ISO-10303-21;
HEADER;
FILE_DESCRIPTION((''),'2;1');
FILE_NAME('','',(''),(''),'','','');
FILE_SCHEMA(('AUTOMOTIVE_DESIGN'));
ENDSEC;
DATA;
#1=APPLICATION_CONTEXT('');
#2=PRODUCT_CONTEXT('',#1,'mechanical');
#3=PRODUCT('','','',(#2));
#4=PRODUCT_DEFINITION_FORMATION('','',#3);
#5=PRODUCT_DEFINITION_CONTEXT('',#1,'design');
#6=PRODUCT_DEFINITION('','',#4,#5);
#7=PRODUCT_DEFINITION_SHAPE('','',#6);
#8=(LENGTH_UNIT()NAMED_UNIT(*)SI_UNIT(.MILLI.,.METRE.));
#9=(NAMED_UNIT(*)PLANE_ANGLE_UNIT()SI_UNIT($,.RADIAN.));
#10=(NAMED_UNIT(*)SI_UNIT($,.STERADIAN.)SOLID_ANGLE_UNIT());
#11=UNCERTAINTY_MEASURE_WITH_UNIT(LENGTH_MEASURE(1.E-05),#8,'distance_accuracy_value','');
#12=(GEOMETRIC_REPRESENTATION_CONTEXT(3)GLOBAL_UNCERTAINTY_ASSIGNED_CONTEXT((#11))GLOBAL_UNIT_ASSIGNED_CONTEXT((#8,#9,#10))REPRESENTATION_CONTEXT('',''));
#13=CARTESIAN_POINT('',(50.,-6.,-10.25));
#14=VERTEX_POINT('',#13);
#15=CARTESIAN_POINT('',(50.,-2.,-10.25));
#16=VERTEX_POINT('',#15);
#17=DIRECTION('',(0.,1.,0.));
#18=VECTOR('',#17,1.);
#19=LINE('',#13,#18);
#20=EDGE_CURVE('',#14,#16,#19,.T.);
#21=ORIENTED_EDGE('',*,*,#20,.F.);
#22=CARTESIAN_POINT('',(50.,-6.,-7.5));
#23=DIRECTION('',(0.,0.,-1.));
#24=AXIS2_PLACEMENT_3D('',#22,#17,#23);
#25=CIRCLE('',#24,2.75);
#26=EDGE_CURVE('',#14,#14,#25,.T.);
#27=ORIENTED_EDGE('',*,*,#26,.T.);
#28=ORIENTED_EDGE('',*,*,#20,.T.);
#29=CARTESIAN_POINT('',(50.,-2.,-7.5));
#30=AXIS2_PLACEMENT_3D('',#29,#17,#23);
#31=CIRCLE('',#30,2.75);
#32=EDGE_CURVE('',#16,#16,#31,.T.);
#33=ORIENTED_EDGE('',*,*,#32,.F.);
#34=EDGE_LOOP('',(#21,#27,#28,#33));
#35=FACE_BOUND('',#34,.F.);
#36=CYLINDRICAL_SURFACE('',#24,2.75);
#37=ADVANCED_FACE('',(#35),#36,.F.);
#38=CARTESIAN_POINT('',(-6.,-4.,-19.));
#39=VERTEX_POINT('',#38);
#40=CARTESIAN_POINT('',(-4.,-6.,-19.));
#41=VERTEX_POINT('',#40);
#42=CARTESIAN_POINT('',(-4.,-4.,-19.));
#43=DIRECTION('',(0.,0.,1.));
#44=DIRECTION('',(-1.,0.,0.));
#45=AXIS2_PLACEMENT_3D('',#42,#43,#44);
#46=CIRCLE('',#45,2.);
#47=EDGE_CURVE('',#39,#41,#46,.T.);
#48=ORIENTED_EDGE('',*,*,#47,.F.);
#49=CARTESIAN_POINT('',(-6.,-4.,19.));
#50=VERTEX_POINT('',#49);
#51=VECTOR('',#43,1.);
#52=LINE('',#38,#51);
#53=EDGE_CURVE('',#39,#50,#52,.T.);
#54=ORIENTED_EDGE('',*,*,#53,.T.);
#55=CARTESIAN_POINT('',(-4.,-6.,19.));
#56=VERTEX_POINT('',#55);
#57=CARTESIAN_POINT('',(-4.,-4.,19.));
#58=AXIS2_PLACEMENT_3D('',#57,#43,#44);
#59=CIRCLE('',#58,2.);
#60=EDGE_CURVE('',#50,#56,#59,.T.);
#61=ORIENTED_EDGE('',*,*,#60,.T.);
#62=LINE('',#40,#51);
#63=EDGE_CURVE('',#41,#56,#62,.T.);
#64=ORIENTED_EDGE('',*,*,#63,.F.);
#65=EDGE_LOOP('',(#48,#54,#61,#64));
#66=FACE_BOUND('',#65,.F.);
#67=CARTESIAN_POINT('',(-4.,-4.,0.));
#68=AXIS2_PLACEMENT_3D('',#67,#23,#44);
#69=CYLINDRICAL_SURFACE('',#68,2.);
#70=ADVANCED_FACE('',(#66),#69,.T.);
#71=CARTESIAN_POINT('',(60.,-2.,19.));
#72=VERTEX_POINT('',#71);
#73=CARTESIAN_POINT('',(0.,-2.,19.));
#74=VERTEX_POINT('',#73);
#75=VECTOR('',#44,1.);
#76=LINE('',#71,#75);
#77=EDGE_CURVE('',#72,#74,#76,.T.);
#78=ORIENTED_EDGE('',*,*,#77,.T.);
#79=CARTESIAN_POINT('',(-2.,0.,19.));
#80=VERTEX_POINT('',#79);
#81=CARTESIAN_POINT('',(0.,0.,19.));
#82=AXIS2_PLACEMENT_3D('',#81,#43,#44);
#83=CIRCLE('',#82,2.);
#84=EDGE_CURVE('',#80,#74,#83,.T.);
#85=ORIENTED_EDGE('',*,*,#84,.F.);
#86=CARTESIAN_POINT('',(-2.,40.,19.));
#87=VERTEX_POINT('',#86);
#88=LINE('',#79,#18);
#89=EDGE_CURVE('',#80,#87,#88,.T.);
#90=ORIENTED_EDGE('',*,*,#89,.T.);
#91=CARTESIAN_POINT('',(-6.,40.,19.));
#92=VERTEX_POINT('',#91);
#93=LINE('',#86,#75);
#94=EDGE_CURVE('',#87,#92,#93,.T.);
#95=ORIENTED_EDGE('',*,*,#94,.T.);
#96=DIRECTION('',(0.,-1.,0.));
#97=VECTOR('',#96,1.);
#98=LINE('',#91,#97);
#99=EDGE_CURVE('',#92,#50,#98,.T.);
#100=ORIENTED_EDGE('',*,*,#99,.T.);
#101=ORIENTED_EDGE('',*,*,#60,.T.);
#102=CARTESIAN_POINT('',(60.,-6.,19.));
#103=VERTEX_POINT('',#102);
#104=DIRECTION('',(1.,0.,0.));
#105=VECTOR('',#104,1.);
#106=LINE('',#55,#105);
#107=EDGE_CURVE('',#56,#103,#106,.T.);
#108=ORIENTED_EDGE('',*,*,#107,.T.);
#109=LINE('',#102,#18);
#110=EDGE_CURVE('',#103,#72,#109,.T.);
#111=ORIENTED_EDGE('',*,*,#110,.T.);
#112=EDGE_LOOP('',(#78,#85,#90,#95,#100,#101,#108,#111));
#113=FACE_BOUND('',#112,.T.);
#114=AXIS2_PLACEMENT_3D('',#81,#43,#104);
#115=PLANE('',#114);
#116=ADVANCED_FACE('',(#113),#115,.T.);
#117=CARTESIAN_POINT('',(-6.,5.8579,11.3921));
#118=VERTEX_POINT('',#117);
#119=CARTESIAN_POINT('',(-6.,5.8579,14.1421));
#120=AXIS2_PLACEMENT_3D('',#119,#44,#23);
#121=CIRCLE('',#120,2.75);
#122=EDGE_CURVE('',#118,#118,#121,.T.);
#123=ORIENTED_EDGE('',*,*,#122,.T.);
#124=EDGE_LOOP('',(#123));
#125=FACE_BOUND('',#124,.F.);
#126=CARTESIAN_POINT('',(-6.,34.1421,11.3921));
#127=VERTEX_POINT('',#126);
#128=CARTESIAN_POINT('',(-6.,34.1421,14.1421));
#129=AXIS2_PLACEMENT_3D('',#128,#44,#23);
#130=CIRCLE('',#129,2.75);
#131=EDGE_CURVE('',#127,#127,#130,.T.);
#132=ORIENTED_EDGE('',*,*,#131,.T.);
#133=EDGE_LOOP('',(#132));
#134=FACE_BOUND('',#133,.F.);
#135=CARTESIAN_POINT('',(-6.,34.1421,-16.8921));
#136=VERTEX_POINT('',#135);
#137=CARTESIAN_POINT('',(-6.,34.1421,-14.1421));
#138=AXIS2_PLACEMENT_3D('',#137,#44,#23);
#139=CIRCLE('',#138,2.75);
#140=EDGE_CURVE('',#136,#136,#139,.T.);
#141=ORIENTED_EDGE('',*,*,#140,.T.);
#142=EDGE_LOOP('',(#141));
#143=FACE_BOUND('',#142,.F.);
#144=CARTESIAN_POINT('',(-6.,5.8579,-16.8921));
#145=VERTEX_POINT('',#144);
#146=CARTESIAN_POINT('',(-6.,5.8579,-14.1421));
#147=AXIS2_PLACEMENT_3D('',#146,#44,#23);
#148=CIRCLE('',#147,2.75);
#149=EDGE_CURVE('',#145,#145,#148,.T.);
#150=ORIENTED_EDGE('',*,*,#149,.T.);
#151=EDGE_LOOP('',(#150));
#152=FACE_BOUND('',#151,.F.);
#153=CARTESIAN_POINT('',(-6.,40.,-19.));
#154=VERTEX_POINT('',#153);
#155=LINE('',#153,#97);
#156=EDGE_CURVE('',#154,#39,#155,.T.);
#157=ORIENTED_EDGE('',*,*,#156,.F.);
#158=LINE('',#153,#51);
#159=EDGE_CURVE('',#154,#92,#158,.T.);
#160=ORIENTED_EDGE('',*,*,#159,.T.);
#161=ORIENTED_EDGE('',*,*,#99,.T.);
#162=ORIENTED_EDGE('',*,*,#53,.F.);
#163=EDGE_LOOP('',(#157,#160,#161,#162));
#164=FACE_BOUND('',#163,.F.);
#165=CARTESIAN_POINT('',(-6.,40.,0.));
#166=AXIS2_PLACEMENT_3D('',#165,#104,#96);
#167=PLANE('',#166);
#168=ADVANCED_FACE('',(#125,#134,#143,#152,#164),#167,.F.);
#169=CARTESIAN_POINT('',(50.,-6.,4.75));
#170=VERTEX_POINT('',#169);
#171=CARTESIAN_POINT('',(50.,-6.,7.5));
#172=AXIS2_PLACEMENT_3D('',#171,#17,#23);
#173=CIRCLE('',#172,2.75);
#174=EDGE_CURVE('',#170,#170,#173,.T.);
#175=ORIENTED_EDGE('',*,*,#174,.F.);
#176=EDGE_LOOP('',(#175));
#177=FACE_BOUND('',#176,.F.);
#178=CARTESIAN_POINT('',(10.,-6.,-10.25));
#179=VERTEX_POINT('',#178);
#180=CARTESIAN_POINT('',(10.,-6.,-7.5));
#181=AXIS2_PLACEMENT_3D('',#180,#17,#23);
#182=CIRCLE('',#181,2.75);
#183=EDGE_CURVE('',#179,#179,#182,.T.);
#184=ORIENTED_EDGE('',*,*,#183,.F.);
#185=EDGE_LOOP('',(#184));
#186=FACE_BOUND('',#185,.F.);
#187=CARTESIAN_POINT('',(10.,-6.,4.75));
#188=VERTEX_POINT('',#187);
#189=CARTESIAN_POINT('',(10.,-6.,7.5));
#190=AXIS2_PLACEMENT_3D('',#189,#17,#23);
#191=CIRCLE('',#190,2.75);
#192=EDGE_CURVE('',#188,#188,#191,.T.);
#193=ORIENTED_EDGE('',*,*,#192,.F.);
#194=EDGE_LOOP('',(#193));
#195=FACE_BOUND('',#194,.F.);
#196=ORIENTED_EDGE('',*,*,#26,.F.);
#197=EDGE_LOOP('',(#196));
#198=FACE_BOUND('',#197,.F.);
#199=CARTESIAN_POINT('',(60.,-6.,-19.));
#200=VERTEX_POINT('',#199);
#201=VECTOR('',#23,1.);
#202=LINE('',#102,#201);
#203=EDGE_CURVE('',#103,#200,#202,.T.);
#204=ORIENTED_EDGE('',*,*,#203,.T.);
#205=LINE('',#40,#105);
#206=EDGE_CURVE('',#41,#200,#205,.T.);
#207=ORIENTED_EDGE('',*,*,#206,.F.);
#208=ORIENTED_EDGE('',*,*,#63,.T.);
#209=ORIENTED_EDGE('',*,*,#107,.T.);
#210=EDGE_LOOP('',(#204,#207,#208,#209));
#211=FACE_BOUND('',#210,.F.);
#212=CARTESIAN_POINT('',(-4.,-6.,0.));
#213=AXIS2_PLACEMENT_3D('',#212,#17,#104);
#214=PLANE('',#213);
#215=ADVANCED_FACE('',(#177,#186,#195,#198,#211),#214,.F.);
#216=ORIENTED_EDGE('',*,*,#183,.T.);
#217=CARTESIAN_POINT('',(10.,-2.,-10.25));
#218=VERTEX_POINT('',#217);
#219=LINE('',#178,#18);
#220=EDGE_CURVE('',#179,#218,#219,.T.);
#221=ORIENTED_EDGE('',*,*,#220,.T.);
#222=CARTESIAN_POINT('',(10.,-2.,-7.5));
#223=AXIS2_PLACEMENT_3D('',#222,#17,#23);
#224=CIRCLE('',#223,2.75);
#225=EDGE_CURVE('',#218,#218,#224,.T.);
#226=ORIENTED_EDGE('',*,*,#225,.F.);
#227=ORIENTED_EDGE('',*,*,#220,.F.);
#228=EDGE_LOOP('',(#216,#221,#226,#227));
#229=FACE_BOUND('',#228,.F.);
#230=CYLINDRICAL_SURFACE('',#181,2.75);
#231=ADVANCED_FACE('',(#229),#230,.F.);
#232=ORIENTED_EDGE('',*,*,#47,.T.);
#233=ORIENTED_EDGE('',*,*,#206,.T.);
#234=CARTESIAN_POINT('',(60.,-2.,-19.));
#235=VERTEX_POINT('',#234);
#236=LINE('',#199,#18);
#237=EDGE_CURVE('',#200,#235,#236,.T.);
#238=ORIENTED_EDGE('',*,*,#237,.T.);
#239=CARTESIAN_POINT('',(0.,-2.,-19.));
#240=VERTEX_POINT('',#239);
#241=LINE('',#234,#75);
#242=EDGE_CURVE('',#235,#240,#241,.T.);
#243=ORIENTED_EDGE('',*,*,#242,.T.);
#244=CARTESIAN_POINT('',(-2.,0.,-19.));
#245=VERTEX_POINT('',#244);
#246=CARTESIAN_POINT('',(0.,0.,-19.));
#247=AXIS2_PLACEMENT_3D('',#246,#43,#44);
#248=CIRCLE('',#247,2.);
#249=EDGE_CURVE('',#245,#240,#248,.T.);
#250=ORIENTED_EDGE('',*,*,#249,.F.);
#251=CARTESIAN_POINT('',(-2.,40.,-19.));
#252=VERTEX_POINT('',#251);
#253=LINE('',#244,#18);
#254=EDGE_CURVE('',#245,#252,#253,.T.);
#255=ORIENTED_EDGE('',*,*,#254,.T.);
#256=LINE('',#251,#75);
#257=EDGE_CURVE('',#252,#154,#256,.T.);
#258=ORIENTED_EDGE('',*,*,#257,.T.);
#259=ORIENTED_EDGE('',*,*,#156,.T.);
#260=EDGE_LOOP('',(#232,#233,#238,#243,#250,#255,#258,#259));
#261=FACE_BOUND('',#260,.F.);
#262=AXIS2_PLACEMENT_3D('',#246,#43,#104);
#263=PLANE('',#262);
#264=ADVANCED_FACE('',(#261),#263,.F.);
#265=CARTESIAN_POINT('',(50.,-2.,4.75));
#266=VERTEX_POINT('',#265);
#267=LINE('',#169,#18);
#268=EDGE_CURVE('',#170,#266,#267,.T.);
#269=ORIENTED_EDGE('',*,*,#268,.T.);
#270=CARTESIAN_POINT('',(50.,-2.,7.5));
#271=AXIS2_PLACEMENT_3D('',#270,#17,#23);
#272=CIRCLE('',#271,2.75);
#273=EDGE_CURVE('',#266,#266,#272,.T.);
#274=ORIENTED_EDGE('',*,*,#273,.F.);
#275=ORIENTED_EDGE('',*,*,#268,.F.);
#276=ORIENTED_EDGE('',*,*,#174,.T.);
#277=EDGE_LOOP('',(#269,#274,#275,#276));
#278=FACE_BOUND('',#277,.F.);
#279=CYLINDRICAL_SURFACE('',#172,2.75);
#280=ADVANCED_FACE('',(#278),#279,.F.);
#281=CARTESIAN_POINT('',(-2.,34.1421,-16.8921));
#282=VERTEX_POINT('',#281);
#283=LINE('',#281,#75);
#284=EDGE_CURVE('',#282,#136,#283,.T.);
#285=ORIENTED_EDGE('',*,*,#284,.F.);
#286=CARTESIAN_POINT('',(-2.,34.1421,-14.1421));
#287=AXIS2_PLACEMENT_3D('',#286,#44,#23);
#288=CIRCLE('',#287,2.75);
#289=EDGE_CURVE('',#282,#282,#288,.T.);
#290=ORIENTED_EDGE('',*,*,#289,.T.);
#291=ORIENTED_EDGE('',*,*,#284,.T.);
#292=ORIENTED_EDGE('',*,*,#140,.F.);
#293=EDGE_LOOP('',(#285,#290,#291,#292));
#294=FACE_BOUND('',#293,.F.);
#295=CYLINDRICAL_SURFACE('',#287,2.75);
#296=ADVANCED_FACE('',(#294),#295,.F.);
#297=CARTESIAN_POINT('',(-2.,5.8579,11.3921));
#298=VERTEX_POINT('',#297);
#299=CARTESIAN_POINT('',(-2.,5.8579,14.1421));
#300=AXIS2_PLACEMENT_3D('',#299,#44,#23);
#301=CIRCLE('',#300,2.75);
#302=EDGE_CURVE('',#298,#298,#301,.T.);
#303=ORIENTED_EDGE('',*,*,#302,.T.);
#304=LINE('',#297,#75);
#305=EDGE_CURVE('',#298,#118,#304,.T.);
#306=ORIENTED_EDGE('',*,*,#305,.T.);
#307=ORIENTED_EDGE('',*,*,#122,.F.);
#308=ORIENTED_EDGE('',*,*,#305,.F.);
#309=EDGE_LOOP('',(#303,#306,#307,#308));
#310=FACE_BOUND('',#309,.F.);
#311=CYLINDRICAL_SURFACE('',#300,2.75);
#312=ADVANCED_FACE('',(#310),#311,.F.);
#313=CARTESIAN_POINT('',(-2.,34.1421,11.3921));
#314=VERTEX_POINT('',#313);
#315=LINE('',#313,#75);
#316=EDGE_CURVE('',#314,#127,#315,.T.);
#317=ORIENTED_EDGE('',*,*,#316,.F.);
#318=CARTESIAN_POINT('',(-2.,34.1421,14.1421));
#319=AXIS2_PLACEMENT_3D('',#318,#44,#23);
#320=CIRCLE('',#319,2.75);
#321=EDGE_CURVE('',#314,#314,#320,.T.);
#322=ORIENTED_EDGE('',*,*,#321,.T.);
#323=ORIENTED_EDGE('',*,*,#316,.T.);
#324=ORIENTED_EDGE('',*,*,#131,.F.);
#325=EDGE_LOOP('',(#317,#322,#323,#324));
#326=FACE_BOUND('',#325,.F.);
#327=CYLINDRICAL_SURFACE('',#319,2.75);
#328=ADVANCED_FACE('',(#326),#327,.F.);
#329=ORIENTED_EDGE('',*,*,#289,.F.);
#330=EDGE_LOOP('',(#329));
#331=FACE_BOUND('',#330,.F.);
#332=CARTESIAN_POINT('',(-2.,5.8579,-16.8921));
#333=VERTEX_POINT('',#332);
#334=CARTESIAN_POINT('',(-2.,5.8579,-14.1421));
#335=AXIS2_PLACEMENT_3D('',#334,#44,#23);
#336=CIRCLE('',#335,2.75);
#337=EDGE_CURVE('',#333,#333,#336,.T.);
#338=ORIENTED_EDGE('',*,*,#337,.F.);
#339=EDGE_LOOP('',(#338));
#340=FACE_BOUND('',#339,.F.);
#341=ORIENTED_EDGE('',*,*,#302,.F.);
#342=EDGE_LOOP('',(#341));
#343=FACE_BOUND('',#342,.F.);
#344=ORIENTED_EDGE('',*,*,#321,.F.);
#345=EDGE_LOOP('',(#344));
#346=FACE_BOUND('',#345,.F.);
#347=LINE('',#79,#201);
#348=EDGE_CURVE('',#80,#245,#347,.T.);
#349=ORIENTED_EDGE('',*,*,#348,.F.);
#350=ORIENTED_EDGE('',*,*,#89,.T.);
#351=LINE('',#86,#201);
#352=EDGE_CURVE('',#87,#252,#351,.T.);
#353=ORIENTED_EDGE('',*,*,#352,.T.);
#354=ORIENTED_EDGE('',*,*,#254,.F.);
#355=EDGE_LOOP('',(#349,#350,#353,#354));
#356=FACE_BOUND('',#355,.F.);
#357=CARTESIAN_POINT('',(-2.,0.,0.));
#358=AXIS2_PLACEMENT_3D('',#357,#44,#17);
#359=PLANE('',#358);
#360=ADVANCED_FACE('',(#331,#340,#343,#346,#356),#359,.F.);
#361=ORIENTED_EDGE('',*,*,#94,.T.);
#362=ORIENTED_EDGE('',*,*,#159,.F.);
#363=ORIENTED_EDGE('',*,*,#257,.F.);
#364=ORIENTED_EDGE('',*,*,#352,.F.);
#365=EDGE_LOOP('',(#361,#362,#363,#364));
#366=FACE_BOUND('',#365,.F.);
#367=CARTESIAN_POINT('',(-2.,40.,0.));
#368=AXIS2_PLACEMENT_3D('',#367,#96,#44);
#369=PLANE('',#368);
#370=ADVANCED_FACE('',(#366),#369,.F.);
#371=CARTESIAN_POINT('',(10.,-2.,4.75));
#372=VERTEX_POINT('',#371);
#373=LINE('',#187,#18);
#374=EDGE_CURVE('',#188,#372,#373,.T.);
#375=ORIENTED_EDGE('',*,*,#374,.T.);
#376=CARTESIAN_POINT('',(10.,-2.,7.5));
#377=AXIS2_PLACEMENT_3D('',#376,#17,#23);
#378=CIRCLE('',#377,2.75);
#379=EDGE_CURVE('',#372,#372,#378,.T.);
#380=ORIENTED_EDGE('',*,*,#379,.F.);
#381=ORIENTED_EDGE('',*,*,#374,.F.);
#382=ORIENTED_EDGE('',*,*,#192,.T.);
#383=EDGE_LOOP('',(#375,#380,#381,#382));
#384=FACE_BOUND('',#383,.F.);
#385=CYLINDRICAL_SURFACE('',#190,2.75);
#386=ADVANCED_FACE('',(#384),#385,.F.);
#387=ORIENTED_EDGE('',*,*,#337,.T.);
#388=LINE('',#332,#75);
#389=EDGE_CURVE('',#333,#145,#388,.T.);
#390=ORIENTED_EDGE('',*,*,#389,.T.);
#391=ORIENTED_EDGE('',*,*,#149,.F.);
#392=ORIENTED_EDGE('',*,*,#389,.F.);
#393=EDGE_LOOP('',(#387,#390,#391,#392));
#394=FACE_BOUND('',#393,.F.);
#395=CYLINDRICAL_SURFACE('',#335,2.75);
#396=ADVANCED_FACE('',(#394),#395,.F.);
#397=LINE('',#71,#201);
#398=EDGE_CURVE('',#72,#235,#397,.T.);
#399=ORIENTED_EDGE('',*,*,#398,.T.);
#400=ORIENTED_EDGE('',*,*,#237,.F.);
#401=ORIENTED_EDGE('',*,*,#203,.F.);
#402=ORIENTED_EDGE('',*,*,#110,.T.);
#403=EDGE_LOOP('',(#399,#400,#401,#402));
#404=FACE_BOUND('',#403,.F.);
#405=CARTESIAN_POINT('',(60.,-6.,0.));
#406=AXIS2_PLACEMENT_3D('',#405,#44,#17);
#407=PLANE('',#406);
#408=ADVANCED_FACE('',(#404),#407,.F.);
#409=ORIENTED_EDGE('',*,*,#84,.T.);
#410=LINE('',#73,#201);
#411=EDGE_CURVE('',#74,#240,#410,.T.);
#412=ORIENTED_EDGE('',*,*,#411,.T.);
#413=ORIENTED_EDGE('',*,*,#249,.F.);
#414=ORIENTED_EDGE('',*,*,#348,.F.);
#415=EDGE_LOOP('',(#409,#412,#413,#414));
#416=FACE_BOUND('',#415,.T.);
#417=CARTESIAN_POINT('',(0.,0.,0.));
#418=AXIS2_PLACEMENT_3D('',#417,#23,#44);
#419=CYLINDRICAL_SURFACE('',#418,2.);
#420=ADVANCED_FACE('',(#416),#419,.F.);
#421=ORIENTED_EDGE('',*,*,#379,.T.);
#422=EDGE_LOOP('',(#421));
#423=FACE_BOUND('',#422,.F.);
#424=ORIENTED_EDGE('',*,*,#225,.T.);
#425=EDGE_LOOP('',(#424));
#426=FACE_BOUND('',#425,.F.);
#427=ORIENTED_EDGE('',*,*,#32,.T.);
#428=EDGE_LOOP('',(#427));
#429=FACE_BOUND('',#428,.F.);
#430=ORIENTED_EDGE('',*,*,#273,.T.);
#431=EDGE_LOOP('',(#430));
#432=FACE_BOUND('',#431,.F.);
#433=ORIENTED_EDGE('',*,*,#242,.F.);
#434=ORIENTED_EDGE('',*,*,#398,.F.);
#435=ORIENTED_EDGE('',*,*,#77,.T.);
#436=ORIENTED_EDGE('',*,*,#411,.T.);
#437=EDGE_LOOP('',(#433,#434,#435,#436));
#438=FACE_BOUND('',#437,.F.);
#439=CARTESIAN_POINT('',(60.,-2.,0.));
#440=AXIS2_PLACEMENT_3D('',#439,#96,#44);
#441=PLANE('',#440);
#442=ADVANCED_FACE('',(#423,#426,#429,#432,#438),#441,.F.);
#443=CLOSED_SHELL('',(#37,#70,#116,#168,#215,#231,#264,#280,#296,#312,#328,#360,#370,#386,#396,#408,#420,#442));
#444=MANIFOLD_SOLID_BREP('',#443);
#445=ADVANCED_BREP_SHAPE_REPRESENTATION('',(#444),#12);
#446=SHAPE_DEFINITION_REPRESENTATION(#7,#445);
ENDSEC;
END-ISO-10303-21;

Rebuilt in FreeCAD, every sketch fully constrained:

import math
import FreeCAD as App
import Part
import Sketcher
from FreeCAD import Vector
Q = App.Units.Quantity

doc = App.newDocument("Part")
body = doc.addObject("PartDesign::Body", "Body")

# Sketch on XY plane
sketch1 = doc.addObject("Sketcher::SketchObject", "Sketch")
body.addObject(sketch1)
sketch1.AttachmentSupport = (doc.XY_Plane, [""])
sketch1.MapMode = "FlatFace"
sketch1.addGeometry(Part.LineSegment(Vector(-2, 40, 0), Vector(-6, 40, 0)), False)
sketch1.addGeometry(Part.LineSegment(Vector(-6, 40, 0), Vector(-6, -4, 0)), False)
sketch1.addGeometry(Part.ArcOfCircle(Part.Circle(Vector(-4, -4, 0), Vector(0, 0, 1), 2), math.radians(180), math.radians(270)), False)
sketch1.addGeometry(Part.LineSegment(Vector(-4, -6, 0), Vector(60, -6, 0)), False)
sketch1.addGeometry(Part.LineSegment(Vector(60, -6, 0), Vector(60, -2, 0)), False)
sketch1.addGeometry(Part.LineSegment(Vector(60, -2, 0), Vector(0, -2, 0)), False)
sketch1.addGeometry(Part.ArcOfCircle(Part.Circle(Vector(0, 0, 0), Vector(0, 0, 1), 2), math.radians(180), math.radians(270)), False)
sketch1.addGeometry(Part.LineSegment(Vector(-2, 0, 0), Vector(-2, 40, 0)), False)
sketch1.addConstraint(Sketcher.Constraint("Coincident", 0, 2, 1, 1))
sketch1.addConstraint(Sketcher.Constraint("Tangent", 1, 2, 2, 1))
sketch1.addConstraint(Sketcher.Constraint("Tangent", 2, 2, 3, 1))
sketch1.addConstraint(Sketcher.Constraint("Coincident", 3, 2, 4, 1))
sketch1.addConstraint(Sketcher.Constraint("Coincident", 4, 2, 5, 1))
sketch1.addConstraint(Sketcher.Constraint("Tangent", 5, 2, 6, 2))
sketch1.addConstraint(Sketcher.Constraint("Tangent", 6, 1, 7, 1))
sketch1.addConstraint(Sketcher.Constraint("Coincident", 7, 2, 0, 1))
sketch1.addConstraint(Sketcher.Constraint("Horizontal", 0))
sketch1.addConstraint(Sketcher.Constraint("Vertical", 1))
sketch1.addConstraint(Sketcher.Constraint("Horizontal", 3))
sketch1.addConstraint(Sketcher.Constraint("Vertical", 4))
sketch1.addConstraint(Sketcher.Constraint("Horizontal", 5))
sketch1.addConstraint(Sketcher.Constraint("Vertical", 7))
sketch1.addConstraint(Sketcher.Constraint("Coincident", 6, 3, -1, 1))
sketch1.addConstraint(Sketcher.Constraint("Equal", 2, 6))
sketch1.addConstraint(Sketcher.Constraint("Equal", 0, 4))
sketch1.addConstraint(Sketcher.Constraint("Radius", 2, Q("2 mm")))
sketch1.addConstraint(Sketcher.Constraint("DistanceX", 0, 2, 0, 1, Q("4 mm")))
sketch1.addConstraint(Sketcher.Constraint("DistanceX", 5, 2, 5, 1, Q("60 mm")))
sketch1.addConstraint(Sketcher.Constraint("DistanceY", 7, 1, 7, 2, Q("40 mm")))
pad1 = doc.addObject("PartDesign::Pad", "Pad")
body.addObject(pad1)
pad1.Profile = sketch1
pad1.Length = 38
pad1.Midplane = True

# Sketch on YZ plane
sketch2 = doc.addObject("Sketcher::SketchObject", "Sketch001")
body.addObject(sketch2)
sketch2.AttachmentSupport = (doc.YZ_Plane, [""])
sketch2.MapMode = "FlatFace"
sketch2.AttachmentOffset = App.Placement(Vector(0, 0, -2), App.Rotation())
sketch2.addGeometry(Part.Circle(Vector(5.8579, -14.1421, 0), Vector(0, 0, 1), 2.75), False)
sketch2.addGeometry(Part.Circle(Vector(34.1421, -14.1421, 0), Vector(0, 0, 1), 2.75), False)
sketch2.addGeometry(Part.Circle(Vector(5.8579, 14.1421, 0), Vector(0, 0, 1), 2.75), False)
sketch2.addGeometry(Part.Circle(Vector(34.1421, 14.1421, 0), Vector(0, 0, 1), 2.75), False)
sketch2.addConstraint(Sketcher.Constraint("Equal", 0, 1))
sketch2.addConstraint(Sketcher.Constraint("Equal", 1, 2))
sketch2.addConstraint(Sketcher.Constraint("Equal", 2, 3))
sketch2.addConstraint(Sketcher.Constraint("Symmetric", 0, 3, 2, 3, -1))
sketch2.addConstraint(Sketcher.Constraint("Symmetric", 1, 3, 3, 3, -1))
sketch2.addConstraint(Sketcher.Constraint("Horizontal", 0, 3, 1, 3))
sketch2.addConstraint(Sketcher.Constraint("Diameter", 0, Q("5.5 mm")))
sketch2.addConstraint(Sketcher.Constraint("DistanceX", -1, 1, 0, 3, Q("5.858 mm")))
sketch2.addConstraint(Sketcher.Constraint("DistanceY", 0, 3, -1, 1, Q("14.142 mm")))
sketch2.addConstraint(Sketcher.Constraint("DistanceX", -1, 1, 1, 3, Q("34.142 mm")))
doc.recompute()
hole = doc.addObject("PartDesign::Hole", "Hole")
body.addObject(hole)
hole.Profile = sketch2
hole.ThreadType = "None"
hole.Diameter = 5.5
hole.DepthType = "ThroughAll"

# Sketch on XZ plane
sketch3 = doc.addObject("Sketcher::SketchObject", "Sketch002")
body.addObject(sketch3)
sketch3.AttachmentSupport = (doc.XZ_Plane, [""])
sketch3.MapMode = "FlatFace"
sketch3.AttachmentOffset = App.Placement(Vector(0, 0, 6), App.Rotation())
sketch3.addGeometry(Part.Circle(Vector(50, 7.5, 0), Vector(0, 0, 1), 2.75), False)
sketch3.addGeometry(Part.Circle(Vector(50, -7.5, 0), Vector(0, 0, 1), 2.75), False)
sketch3.addGeometry(Part.Circle(Vector(10, -7.5, 0), Vector(0, 0, 1), 2.75), False)
sketch3.addGeometry(Part.Circle(Vector(10, 7.5, 0), Vector(0, 0, 1), 2.75), False)
sketch3.addConstraint(Sketcher.Constraint("Equal", 0, 1))
sketch3.addConstraint(Sketcher.Constraint("Equal", 1, 2))
sketch3.addConstraint(Sketcher.Constraint("Equal", 2, 3))
sketch3.addConstraint(Sketcher.Constraint("Symmetric", 0, 3, 1, 3, -1))
sketch3.addConstraint(Sketcher.Constraint("Symmetric", 2, 3, 3, 3, -1))
sketch3.addConstraint(Sketcher.Constraint("Horizontal", 1, 3, 2, 3))
sketch3.addConstraint(Sketcher.Constraint("Diameter", 0, Q("5.5 mm")))
sketch3.addConstraint(Sketcher.Constraint("DistanceX", -1, 1, 0, 3, Q("50 mm")))
sketch3.addConstraint(Sketcher.Constraint("DistanceX", -1, 1, 2, 3, Q("10 mm")))
sketch3.addConstraint(Sketcher.Constraint("DistanceY", 1, 3, 0, 3, Q("15 mm")))
doc.recompute()
hole2 = doc.addObject("PartDesign::Hole", "Hole001")
body.addObject(hole2)
hole2.Profile = sketch3
hole2.ThreadType = "None"
hole2.Diameter = 5.5
hole2.DepthType = "ThroughAll"

doc.recompute()
